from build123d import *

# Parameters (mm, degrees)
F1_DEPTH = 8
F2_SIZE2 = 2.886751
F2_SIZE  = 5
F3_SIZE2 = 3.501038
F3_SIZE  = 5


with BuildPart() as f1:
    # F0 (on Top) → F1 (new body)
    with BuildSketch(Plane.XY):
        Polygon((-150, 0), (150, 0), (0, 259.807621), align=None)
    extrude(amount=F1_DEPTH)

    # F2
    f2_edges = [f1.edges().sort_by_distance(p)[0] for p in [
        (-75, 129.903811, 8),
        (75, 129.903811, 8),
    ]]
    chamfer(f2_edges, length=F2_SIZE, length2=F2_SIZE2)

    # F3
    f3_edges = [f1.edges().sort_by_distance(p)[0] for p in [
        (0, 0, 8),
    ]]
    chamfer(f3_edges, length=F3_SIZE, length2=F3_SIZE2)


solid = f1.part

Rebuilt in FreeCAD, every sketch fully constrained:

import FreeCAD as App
import Part
import Sketcher

V = App.Vector
Q = App.Units.Quantity


def edges_at(feature, points):
    """Names of the edges that pass closest to the given points."""
    edges = feature.Shape.Edges
    near = lambda p: min(range(len(edges)), key=lambda i: edges[i].distToShape(Part.Vertex(*p))[0])
    return sorted({f"Edge{near(p) + 1}" for p in points})


def add_polygon(sketch, points):
    """Adds a closed chain of lines whose ends are joined by coincident constraints."""
    first, n = sketch.GeometryCount, len(points)
    for a, b in zip(points, points[1:] + points[:1]):
        sketch.addGeometry(Part.LineSegment(App.Vector(*a, 0), App.Vector(*b, 0)), False)
    for i in range(n):
        sketch.addConstraint(Sketcher.Constraint("Coincident", first + i, 2, first + (i + 1) % n, 1))

doc = App.newDocument("Part")
body = doc.addObject("PartDesign::Body", "Body")

sketch1 = body.newObject("Sketcher::SketchObject", "Sketch")
sketch1.AttachmentSupport = (doc.getObject("XY_Plane"), [""])
sketch1.MapMode = "FlatFace"
add_polygon(sketch1, [(-150, 0), (150, 0), (0, 259.807621)])
sketch1.addConstraint([
    Sketcher.Constraint("Horizontal", 0),
    Sketcher.Constraint("Symmetric", 0, 2, 2, 2, -1, 1),
    Sketcher.Constraint("PointOnObject", 1, 2, -2),
    Sketcher.Constraint("DistanceX", 0, 1, 0, 2, Q("300 mm")),
    Sketcher.Constraint("Angle", 1, Q("120 deg")),
])
pad1 = body.newObject("PartDesign::Pad", "Pad")
pad1.Profile = sketch1
pad1.Length = 8
doc.recompute()

chamfer = body.newObject("PartDesign::Chamfer", "Chamfer")
chamfer.Base = (pad1, edges_at(pad1, [(-75, 129.904, 8), (75, 129.904, 8)]))
chamfer.ChamferType = "Two distances"
chamfer.Size = 5
chamfer.Size2 = 2.886751
doc.recompute()

chamfer2 = body.newObject("PartDesign::Chamfer", "Chamfer001")
chamfer2.Base = (chamfer, edges_at(chamfer, [(0, 0, 8)]))
chamfer2.ChamferType = "Two distances"
chamfer2.Size = 5
chamfer2.Size2 = 3.501038

doc.recompute()
